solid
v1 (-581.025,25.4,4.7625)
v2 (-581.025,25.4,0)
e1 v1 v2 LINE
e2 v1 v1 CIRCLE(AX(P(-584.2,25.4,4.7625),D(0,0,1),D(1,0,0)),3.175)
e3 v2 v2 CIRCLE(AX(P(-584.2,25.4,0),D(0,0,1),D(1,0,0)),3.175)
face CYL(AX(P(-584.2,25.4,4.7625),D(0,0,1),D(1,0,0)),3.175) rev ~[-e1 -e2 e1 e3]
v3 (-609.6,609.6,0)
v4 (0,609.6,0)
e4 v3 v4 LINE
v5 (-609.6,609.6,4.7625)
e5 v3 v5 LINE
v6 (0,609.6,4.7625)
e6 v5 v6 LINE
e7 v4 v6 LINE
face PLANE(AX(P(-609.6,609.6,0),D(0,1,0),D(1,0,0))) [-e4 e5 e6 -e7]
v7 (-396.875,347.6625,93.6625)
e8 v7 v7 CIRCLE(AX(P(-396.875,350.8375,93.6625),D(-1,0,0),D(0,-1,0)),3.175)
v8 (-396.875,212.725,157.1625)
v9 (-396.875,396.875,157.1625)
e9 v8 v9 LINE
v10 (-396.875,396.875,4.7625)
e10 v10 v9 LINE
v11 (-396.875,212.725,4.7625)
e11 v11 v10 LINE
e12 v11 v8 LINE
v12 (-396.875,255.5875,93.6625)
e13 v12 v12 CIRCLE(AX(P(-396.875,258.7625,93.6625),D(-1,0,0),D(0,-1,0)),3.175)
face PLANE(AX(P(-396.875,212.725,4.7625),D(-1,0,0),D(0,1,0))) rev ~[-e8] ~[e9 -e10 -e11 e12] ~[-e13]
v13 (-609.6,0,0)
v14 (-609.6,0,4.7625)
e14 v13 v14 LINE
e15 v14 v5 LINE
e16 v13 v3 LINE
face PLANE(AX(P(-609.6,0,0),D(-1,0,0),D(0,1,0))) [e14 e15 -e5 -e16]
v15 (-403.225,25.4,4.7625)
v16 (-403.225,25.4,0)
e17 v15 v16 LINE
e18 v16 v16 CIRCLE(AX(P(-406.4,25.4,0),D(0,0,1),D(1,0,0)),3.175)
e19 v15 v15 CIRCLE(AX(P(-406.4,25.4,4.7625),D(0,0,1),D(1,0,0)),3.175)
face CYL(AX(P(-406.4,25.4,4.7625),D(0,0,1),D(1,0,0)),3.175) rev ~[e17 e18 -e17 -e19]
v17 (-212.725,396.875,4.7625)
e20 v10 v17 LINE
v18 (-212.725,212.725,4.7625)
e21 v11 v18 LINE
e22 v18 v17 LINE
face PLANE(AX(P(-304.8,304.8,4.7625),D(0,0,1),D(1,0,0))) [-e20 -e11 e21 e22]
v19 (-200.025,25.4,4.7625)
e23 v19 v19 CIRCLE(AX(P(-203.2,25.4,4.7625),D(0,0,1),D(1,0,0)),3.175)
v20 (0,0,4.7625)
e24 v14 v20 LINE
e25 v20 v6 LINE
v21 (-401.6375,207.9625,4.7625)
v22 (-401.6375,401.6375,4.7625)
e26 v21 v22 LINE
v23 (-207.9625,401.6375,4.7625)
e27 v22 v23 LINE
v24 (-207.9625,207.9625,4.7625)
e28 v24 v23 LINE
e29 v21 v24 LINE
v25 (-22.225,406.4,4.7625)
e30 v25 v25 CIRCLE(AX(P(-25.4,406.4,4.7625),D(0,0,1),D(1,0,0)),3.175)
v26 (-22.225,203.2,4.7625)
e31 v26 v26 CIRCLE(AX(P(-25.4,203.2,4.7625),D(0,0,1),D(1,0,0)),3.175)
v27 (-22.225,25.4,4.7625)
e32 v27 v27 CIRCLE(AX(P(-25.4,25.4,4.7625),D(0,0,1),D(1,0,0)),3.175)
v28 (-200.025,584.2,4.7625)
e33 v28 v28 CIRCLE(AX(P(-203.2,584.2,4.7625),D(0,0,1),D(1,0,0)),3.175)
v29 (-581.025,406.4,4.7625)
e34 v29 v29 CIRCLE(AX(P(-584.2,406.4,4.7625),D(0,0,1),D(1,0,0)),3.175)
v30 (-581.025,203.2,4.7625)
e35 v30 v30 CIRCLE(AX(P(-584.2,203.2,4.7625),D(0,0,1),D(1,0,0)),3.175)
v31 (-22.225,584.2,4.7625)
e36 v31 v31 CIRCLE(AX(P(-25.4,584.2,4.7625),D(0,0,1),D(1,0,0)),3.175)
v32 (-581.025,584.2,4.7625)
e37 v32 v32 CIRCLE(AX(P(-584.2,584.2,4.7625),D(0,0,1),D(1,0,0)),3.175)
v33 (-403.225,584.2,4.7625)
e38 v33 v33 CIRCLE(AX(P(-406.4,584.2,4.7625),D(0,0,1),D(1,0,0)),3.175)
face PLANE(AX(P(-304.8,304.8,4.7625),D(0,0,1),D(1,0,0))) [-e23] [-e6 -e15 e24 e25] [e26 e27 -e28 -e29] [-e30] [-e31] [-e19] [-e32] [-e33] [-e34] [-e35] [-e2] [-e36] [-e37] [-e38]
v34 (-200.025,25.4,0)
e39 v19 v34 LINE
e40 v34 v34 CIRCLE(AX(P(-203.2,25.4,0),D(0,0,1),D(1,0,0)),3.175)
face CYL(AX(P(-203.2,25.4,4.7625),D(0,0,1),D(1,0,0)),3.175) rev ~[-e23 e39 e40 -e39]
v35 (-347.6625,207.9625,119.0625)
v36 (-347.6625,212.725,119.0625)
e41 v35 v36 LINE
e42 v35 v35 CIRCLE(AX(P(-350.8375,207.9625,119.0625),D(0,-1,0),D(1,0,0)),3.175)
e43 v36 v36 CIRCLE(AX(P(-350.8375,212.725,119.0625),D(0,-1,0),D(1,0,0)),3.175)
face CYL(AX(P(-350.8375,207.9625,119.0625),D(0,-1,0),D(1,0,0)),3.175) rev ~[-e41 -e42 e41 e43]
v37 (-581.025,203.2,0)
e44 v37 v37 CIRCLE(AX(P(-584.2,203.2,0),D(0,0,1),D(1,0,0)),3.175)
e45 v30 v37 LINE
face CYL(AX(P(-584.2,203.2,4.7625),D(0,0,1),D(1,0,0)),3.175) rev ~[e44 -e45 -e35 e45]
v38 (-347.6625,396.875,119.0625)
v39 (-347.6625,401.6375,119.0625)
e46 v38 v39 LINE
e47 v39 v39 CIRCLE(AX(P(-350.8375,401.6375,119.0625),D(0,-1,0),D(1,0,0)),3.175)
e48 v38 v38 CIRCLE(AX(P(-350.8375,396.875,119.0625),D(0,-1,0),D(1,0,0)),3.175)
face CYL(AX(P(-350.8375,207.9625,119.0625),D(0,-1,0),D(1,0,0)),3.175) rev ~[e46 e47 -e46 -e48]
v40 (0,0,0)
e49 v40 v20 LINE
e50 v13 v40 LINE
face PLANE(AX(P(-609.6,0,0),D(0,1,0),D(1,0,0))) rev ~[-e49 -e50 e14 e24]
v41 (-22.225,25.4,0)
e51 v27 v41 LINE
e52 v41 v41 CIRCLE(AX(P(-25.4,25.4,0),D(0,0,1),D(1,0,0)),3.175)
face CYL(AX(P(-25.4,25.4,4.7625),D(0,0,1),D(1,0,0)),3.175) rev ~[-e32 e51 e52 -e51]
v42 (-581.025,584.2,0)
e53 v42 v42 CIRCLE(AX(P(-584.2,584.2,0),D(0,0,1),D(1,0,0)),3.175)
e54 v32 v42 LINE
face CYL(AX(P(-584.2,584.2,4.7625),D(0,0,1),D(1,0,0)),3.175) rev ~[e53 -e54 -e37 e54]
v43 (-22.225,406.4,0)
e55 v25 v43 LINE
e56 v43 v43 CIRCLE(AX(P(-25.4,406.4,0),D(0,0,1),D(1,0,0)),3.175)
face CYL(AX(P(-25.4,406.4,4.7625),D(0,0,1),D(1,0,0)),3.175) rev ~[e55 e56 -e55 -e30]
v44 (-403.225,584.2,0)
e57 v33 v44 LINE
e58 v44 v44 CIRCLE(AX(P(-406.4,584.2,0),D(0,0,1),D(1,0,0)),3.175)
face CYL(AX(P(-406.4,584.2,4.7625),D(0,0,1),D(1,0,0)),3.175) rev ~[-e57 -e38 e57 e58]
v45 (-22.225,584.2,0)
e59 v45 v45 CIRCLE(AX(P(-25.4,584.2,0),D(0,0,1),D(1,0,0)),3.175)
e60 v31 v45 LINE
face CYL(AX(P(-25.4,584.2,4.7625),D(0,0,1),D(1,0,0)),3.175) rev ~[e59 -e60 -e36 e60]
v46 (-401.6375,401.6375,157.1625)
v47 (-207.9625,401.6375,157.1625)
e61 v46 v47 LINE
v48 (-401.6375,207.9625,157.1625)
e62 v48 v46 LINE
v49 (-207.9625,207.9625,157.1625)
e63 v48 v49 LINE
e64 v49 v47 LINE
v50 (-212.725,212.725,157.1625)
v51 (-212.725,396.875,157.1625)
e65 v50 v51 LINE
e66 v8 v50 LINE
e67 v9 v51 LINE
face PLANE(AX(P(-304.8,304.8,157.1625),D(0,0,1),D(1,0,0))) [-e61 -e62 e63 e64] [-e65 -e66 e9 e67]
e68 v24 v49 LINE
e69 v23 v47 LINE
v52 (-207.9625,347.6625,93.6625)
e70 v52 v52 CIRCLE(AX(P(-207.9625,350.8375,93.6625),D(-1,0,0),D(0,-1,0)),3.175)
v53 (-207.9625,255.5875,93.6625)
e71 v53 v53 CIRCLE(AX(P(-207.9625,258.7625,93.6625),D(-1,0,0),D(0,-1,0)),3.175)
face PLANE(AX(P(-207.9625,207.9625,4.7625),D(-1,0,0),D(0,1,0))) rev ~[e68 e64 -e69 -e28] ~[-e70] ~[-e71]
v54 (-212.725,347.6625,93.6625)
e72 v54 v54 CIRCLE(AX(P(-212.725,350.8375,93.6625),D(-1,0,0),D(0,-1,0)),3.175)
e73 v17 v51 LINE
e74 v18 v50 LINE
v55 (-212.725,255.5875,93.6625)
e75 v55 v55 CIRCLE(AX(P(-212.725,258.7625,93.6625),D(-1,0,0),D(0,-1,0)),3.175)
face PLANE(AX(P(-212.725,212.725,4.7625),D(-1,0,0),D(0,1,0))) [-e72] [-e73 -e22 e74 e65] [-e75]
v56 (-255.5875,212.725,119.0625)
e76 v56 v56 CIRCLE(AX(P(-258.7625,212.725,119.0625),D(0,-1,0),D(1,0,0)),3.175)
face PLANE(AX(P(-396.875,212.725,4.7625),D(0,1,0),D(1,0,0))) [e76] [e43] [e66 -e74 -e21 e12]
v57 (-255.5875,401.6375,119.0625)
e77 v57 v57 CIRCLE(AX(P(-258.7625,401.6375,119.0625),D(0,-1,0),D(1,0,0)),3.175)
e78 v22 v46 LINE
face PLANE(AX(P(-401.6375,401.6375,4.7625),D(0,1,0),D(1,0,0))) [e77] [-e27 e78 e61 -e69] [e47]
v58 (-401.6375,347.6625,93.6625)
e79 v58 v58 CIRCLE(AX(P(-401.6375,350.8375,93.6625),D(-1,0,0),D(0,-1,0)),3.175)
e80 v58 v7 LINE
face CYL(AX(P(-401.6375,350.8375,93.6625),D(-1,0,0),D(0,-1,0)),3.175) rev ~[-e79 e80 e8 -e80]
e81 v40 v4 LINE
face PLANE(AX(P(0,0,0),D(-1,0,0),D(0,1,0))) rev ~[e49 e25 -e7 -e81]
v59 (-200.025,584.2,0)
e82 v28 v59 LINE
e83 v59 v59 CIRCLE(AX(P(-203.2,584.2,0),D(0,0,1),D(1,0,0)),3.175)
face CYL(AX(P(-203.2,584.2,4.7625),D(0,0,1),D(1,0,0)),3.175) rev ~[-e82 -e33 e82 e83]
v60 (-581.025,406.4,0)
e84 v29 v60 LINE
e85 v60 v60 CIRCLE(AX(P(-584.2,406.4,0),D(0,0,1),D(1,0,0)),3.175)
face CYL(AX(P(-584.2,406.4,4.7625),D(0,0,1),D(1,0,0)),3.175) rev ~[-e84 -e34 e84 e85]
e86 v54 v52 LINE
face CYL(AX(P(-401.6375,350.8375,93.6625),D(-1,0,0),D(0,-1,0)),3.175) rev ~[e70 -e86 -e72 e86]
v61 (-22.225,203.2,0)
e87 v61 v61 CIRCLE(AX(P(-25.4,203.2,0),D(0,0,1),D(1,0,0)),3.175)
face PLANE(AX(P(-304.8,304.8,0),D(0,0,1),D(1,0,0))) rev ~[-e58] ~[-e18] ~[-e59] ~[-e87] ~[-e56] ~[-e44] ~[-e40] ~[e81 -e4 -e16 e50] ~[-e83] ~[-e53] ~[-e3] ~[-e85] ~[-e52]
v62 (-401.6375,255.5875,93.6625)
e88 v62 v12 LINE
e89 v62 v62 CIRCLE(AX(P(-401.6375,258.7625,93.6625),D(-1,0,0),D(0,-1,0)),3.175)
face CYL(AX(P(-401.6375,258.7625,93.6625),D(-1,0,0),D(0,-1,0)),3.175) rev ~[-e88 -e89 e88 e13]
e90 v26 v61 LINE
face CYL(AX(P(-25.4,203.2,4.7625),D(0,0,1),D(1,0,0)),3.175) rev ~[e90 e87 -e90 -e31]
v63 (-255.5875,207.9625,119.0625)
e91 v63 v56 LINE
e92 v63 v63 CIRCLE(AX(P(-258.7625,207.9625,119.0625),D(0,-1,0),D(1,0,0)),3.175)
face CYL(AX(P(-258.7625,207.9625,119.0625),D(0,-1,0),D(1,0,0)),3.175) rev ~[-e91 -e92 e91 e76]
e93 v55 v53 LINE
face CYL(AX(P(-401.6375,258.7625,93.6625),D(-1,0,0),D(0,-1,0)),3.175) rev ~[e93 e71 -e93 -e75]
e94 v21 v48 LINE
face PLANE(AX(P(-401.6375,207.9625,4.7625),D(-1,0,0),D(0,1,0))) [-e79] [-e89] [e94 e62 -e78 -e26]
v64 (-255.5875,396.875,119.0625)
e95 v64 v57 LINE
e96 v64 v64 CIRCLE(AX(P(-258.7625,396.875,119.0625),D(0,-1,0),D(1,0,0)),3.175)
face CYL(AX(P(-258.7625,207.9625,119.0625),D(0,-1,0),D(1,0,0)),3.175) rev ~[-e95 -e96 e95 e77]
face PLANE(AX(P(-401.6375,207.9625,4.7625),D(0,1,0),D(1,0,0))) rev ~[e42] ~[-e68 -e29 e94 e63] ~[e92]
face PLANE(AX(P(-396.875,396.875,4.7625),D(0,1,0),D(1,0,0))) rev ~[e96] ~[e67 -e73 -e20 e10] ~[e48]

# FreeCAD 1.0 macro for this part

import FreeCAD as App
import Part
import Sketcher

V = App.Vector
Q = App.Units.Quantity

doc = App.newDocument("Part")
body = doc.addObject("PartDesign::Body", "Body")

sketch1 = body.newObject("Sketcher::SketchObject", "Sketch")
sketch1.AttachmentSupport = (doc.getObject("XY_Plane"), [""])
sketch1.MapMode = "FlatFace"
sketch1.addGeometry(Part.LineSegment(V(-610, 610, 0), V(-610, 0, 0)), False)
sketch1.addGeometry(Part.LineSegment(V(-610, 0, 0), V(0, 0, 0)), False)
sketch1.addGeometry(Part.LineSegment(V(0, 0, 0), V(0, 610, 0)), False)
sketch1.addGeometry(Part.LineSegment(V(0, 610, 0), V(-610, 610, 0)), False)
sketch1.addConstraint(Sketcher.Constraint("Coincident", 0, 2, 1, 1))
sketch1.addConstraint(Sketcher.Constraint("Coincident", 1, 2, 2, 1))
sketch1.addConstraint(Sketcher.Constraint("Coincident", 2, 2, 3, 1))
sketch1.addConstraint(Sketcher.Constraint("Coincident", 3, 2, 0, 1))
sketch1.addConstraint(Sketcher.Constraint("Vertical", 0))
sketch1.addConstraint(Sketcher.Constraint("Horizontal", 1))
sketch1.addConstraint(Sketcher.Constraint("Vertical", 2))
sketch1.addConstraint(Sketcher.Constraint("Horizontal", 3))
sketch1.addConstraint(Sketcher.Constraint("Coincident", 1, 2, -1, 1))
sketch1.addConstraint(Sketcher.Constraint("Equal", 3, 0))
sketch1.addConstraint(Sketcher.Constraint("DistanceX", 1, 1, 1, 2, Q("24 in")))
pad1 = body.newObject("PartDesign::Pad", "Pad")
pad1.Profile = sketch1
pad1.Length = Q("0.1875 in")

sketch2 = body.newObject("Sketcher::SketchObject", "Sketch001")
sketch2.AttachmentSupport = (doc.getObject("XY_Plane"), [""])
sketch2.MapMode = "FlatFace"
sketch2.AttachmentOffset = App.Placement(V(0, 0, 0.1875 * 25.4), App.Rotation())
sketch2.addGeometry(Part.LineSegment(V(-402, 402, 0), V(-402, 208, 0)), False)
sketch2.addGeometry(Part.LineSegment(V(-402, 208, 0), V(-208, 208, 0)), False)
sketch2.addGeometry(Part.LineSegment(V(-208, 208, 0), V(-208, 402, 0)), False)
sketch2.addGeometry(Part.LineSegment(V(-208, 402, 0), V(-402, 402, 0)), False)
sketch2.addGeometry(Part.LineSegment(V(-213, 213, 0), V(-397, 213, 0)), False)
sketch2.addGeometry(Part.LineSegment(V(-397, 213, 0), V(-397, 397, 0)), False)
sketch2.addGeometry(Part.LineSegment(V(-397, 397, 0), V(-213, 397, 0)), False)
sketch2.addGeometry(Part.LineSegment(V(-213, 397, 0), V(-213, 213, 0)), False)
sketch2.addConstraint(Sketcher.Constraint("Coincident", 0, 2, 1, 1))
sketch2.addConstraint(Sketcher.Constraint("Coincident", 1, 2, 2, 1))
sketch2.addConstraint(Sketcher.Constraint("Coincident", 2, 2, 3, 1))
sketch2.addConstraint(Sketcher.Constraint("Coincident", 3, 2, 0, 1))
sketch2.addConstraint(Sketcher.Constraint("Coincident", 4, 2, 5, 1))
sketch2.addConstraint(Sketcher.Constraint("Coincident", 5, 2, 6, 1))
sketch2.addConstraint(Sketcher.Constraint("Coincident", 6, 2, 7, 1))
sketch2.addConstraint(Sketcher.Constraint("Coincident", 7, 2, 4, 1))
sketch2.addConstraint(Sketcher.Constraint("Vertical", 0))
sketch2.addConstraint(Sketcher.Constraint("Horizontal", 1))
sketch2.addConstraint(Sketcher.Constraint("Vertical", 2))
sketch2.addConstraint(Sketcher.Constraint("Horizontal", 3))
sketch2.addConstraint(Sketcher.Constraint("Horizontal", 4))
sketch2.addConstraint(Sketcher.Constraint("Vertical", 5))
sketch2.addConstraint(Sketcher.Constraint("Horizontal", 6))
sketch2.addConstraint(Sketcher.Constraint("Vertical", 7))
sketch2.addConstraint(Sketcher.Constraint("Equal", 3, 0))
sketch2.addConstraint(Sketcher.Constraint("Equal", 6, 5))
sketch2.addConstraint(Sketcher.Constraint("DistanceX", 4, 2, 4, 1, Q("7.25 in")))
sketch2.addConstraint(Sketcher.Constraint("DistanceX", 1, 1, 1, 2, Q("7.625 in")))
sketch2.addConstraint(Sketcher.Constraint("DistanceX", 0, 2, -1, 1, Q("15.8125 in")))
sketch2.addConstraint(Sketcher.Constraint("DistanceY", -1, 1, 0, 2, Q("8.1875 in")))
sketch2.addConstraint(Sketcher.Constraint("DistanceX", 4, 2, -1, 1, Q("15.625 in")))
sketch2.addConstraint(Sketcher.Constraint("DistanceY", -1, 1, 4, 2, Q("8.375 in")))
pad2 = body.newObject("PartDesign::Pad", "Pad001")
pad2.Profile = sketch2
pad2.Length = Q("6 in")

sketch3 = body.newObject("Sketcher::SketchObject", "Sketch002")
sketch3.AttachmentSupport = (doc.getObject("XY_Plane"), [""])
sketch3.MapMode = "FlatFace"
sketch3.AttachmentOffset = App.Placement(V(0, 0, 0.1875 * 25.4), App.Rotation())
sketch3.addGeometry(Part.Circle(V(-25.4, 584.2, 0), V(0, 0, 1), 3.2), False)
sketch3.addGeometry(Part.Circle(V(-25.4, 25.4, 0), V(0, 0, 1), 3.2), False)
sketch3.addGeometry(Part.Circle(V(-584.2, 584.2, 0), V(0, 0, 1), 3.2), False)
sketch3.addGeometry(Part.Circle(V(-584.2, 25.4, 0), V(0, 0, 1), 3.2), False)
sketch3.addGeometry(Part.Circle(V(-25.4, 406.4, 0), V(0, 0, 1), 3.2), False)
sketch3.addGeometry(Part.Circle(V(-25.4, 203.2, 0), V(0, 0, 1), 3.2), False)
sketch3.addGeometry(Part.Circle(V(-584.2, 406.4, 0), V(0, 0, 1), 3.2), False)
sketch3.addGeometry(Part.Circle(V(-584.2, 203.2, 0), V(0, 0, 1), 3.2), False)
sketch3.addGeometry(Part.Circle(V(-406.4, 25.4, 0), V(0, 0, 1), 3.2), False)
sketch3.addGeometry(Part.Circle(V(-406.4, 584.2, 0), V(0, 0, 1), 3.2), False)
sketch3.addGeometry(Part.Circle(V(-203.2, 25.4, 0), V(0, 0, 1), 3.2), False)
sketch3.addGeometry(Part.Circle(V(-203.2, 584.2, 0), V(0, 0, 1), 3.2), False)
sketch3.addConstraint(Sketcher.Constraint("Equal", 0, 1))
sketch3.addConstraint(Sketcher.Constraint("Equal", 1, 2))
sketch3.addConstraint(Sketcher.Constraint("Equal", 2, 3))
sketch3.addConstraint(Sketcher.Constraint("Equal", 3, 4))
sketch3.addConstraint(Sketcher.Constraint("Equal", 4, 5))
sketch3.addConstraint(Sketcher.Constraint("Equal", 5, 6))
sketch3.addConstraint(Sketcher.Constraint("Equal", 6, 7))
sketch3.addConstraint(Sketcher.Constraint("Equal", 7, 8))
sketch3.addConstraint(Sketcher.Constraint("Equal", 8, 9))
sketch3.addConstraint(Sketcher.Constraint("Equal", 9, 10))
sketch3.addConstraint(Sketcher.Constraint("Equal", 10, 11))
sketch3.addConstraint(Sketcher.Constraint("Horizontal", 0, 3, 2, 3))
sketch3.addConstraint(Sketcher.Constraint("Horizontal", 1, 3, 3, 3))
sketch3.addConstraint(Sketcher.Constraint("Horizontal", 4, 3, 6, 3))
sketch3.addConstraint(Sketcher.Constraint("Horizontal", 5, 3, 7, 3))
sketch3.addConstraint(Sketcher.Constraint("Horizontal", 3, 3, 8, 3))
sketch3.addConstraint(Sketcher.Constraint("Horizontal", 2, 3, 9, 3))
sketch3.addConstraint(Sketcher.Constraint("Horizontal", 8, 3, 10, 3))
sketch3.addConstraint(Sketcher.Constraint("Horizontal", 9, 3, 11, 3))
sketch3.addConstraint(Sketcher.Constraint("Vertical", 0, 3, 1, 3))
sketch3.addConstraint(Sketcher.Constraint("Vertical", 2, 3, 3, 3))
sketch3.addConstraint(Sketcher.Constraint("Vertical", 1, 3, 4, 3))
sketch3.addConstraint(Sketcher.Constraint("Vertical", 4, 3, 5, 3))
sketch3.addConstraint(Sketcher.Constraint("Vertical", 3, 3, 6, 3))
sketch3.addConstraint(Sketcher.Constraint("Vertical", 6, 3, 7, 3))
sketch3.addConstraint(Sketcher.Constraint("Vertical", 8, 3, 9, 3))
sketch3.addConstraint(Sketcher.Constraint("Vertical", 10, 3, 11, 3))
sketch3.addConstraint(Sketcher.Constraint("Diameter", 0, Q("0.25 in")))
sketch3.addConstraint(Sketcher.Constraint("DistanceX", 0, 3, -1, 1, Q("1 in")))
sketch3.addConstraint(Sketcher.Constraint("DistanceY", -1, 1, 0, 3, Q("23 in")))
sketch3.addConstraint(Sketcher.Constraint("DistanceY", -1, 1, 1, 3, Q("1 in")))
sketch3.addConstraint(Sketcher.Constraint("DistanceX", 2, 3, -1, 1, Q("23 in")))
sketch3.addConstraint(Sketcher.Constraint("DistanceY", -1, 1, 4, 3, Q("16 in")))
sketch3.addConstraint(Sketcher.Constraint("DistanceY", -1, 1, 5, 3, Q("8 in")))
sketch3.addConstraint(Sketcher.Constraint("DistanceX", 8, 3, -1, 1, Q("16 in")))
sketch3.addConstraint(Sketcher.Constraint("DistanceX", 10, 3, -1, 1, Q("8 in")))
pocket1 = body.newObject("PartDesign::Pocket", "Pocket")
pocket1.Profile = sketch3
pocket1.Length = Q("1 in")

sketch4 = body.newObject("Sketcher::SketchObject", "Sketch003")
sketch4.AttachmentSupport = (doc.getObject("XZ_Plane"), [""])
sketch4.MapMode = "FlatFace"
sketch4.AttachmentOffset = App.Placement(V(0, 0, -8.1875 * 25.4), App.Rotation())
sketch4.addGeometry(Part.Circle(V(-350.8, 119.1, 0), V(0, 0, 1), 3.2), False)
sketch4.addGeometry(Part.Circle(V(-258.8, 119.1, 0), V(0, 0, 1), 3.2), False)
sketch4.addConstraint(Sketcher.Constraint("Equal", 0, 1))
sketch4.addConstraint(Sketcher.Constraint("Horizontal", 0, 3, 1, 3))
sketch4.addConstraint(Sketcher.Constraint("Diameter", 0, Q("0.25 in")))
sketch4.addConstraint(Sketcher.Constraint("DistanceX", 0, 3, -1, 1, Q("13.8125 in")))
sketch4.addConstraint(Sketcher.Constraint("DistanceY", -1, 1, 0, 3, Q("4.6875 in")))
sketch4.addConstraint(Sketcher.Constraint("DistanceX", 1, 3, -1, 1, Q("10.1875 in")))
pocket2 = body.newObject("PartDesign::Pocket", "Pocket001")
pocket2.Profile = sketch4
pocket2.Type = "ThroughAll"

sketch5 = body.newObject("Sketcher::SketchObject", "Sketch004")
sketch5.AttachmentSupport = (doc.getObject("YZ_Plane"), [""])
sketch5.MapMode = "FlatFace"
sketch5.AttachmentOffset = App.Placement(V(0, 0, -15.8125 * 25.4), App.Rotation())
sketch5.addGeometry(Part.Circle(V(258.8, 93.7, 0), V(0, 0, 1), 3.2), False)
sketch5.addGeometry(Part.Circle(V(350.8, 93.7, 0), V(0, 0, 1), 3.2), False)
sketch5.addConstraint(Sketcher.Constraint("Equal", 0, 1))
sketch5.addConstraint(Sketcher.Constraint("Horizontal", 0, 3, 1, 3))
sketch5.addConstraint(Sketcher.Constraint("Diameter", 0, Q("0.25 in")))
sketch5.addConstraint(Sketcher.Constraint("DistanceX", -1, 1, 0, 3, Q("10.1875 in")))
sketch5.addConstraint(Sketcher.Constraint("DistanceY", -1, 1, 0, 3, Q("3.6875 in")))
sketch5.addConstraint(Sketcher.Constraint("DistanceX", -1, 1, 1, 3, Q("13.8125 in")))
pocket3 = body.newObject("PartDesign::Pocket", "Pocket002")
pocket3.Profile = sketch5
pocket3.Type = "ThroughAll"
pocket3.Reversed = True

doc.recompute()
